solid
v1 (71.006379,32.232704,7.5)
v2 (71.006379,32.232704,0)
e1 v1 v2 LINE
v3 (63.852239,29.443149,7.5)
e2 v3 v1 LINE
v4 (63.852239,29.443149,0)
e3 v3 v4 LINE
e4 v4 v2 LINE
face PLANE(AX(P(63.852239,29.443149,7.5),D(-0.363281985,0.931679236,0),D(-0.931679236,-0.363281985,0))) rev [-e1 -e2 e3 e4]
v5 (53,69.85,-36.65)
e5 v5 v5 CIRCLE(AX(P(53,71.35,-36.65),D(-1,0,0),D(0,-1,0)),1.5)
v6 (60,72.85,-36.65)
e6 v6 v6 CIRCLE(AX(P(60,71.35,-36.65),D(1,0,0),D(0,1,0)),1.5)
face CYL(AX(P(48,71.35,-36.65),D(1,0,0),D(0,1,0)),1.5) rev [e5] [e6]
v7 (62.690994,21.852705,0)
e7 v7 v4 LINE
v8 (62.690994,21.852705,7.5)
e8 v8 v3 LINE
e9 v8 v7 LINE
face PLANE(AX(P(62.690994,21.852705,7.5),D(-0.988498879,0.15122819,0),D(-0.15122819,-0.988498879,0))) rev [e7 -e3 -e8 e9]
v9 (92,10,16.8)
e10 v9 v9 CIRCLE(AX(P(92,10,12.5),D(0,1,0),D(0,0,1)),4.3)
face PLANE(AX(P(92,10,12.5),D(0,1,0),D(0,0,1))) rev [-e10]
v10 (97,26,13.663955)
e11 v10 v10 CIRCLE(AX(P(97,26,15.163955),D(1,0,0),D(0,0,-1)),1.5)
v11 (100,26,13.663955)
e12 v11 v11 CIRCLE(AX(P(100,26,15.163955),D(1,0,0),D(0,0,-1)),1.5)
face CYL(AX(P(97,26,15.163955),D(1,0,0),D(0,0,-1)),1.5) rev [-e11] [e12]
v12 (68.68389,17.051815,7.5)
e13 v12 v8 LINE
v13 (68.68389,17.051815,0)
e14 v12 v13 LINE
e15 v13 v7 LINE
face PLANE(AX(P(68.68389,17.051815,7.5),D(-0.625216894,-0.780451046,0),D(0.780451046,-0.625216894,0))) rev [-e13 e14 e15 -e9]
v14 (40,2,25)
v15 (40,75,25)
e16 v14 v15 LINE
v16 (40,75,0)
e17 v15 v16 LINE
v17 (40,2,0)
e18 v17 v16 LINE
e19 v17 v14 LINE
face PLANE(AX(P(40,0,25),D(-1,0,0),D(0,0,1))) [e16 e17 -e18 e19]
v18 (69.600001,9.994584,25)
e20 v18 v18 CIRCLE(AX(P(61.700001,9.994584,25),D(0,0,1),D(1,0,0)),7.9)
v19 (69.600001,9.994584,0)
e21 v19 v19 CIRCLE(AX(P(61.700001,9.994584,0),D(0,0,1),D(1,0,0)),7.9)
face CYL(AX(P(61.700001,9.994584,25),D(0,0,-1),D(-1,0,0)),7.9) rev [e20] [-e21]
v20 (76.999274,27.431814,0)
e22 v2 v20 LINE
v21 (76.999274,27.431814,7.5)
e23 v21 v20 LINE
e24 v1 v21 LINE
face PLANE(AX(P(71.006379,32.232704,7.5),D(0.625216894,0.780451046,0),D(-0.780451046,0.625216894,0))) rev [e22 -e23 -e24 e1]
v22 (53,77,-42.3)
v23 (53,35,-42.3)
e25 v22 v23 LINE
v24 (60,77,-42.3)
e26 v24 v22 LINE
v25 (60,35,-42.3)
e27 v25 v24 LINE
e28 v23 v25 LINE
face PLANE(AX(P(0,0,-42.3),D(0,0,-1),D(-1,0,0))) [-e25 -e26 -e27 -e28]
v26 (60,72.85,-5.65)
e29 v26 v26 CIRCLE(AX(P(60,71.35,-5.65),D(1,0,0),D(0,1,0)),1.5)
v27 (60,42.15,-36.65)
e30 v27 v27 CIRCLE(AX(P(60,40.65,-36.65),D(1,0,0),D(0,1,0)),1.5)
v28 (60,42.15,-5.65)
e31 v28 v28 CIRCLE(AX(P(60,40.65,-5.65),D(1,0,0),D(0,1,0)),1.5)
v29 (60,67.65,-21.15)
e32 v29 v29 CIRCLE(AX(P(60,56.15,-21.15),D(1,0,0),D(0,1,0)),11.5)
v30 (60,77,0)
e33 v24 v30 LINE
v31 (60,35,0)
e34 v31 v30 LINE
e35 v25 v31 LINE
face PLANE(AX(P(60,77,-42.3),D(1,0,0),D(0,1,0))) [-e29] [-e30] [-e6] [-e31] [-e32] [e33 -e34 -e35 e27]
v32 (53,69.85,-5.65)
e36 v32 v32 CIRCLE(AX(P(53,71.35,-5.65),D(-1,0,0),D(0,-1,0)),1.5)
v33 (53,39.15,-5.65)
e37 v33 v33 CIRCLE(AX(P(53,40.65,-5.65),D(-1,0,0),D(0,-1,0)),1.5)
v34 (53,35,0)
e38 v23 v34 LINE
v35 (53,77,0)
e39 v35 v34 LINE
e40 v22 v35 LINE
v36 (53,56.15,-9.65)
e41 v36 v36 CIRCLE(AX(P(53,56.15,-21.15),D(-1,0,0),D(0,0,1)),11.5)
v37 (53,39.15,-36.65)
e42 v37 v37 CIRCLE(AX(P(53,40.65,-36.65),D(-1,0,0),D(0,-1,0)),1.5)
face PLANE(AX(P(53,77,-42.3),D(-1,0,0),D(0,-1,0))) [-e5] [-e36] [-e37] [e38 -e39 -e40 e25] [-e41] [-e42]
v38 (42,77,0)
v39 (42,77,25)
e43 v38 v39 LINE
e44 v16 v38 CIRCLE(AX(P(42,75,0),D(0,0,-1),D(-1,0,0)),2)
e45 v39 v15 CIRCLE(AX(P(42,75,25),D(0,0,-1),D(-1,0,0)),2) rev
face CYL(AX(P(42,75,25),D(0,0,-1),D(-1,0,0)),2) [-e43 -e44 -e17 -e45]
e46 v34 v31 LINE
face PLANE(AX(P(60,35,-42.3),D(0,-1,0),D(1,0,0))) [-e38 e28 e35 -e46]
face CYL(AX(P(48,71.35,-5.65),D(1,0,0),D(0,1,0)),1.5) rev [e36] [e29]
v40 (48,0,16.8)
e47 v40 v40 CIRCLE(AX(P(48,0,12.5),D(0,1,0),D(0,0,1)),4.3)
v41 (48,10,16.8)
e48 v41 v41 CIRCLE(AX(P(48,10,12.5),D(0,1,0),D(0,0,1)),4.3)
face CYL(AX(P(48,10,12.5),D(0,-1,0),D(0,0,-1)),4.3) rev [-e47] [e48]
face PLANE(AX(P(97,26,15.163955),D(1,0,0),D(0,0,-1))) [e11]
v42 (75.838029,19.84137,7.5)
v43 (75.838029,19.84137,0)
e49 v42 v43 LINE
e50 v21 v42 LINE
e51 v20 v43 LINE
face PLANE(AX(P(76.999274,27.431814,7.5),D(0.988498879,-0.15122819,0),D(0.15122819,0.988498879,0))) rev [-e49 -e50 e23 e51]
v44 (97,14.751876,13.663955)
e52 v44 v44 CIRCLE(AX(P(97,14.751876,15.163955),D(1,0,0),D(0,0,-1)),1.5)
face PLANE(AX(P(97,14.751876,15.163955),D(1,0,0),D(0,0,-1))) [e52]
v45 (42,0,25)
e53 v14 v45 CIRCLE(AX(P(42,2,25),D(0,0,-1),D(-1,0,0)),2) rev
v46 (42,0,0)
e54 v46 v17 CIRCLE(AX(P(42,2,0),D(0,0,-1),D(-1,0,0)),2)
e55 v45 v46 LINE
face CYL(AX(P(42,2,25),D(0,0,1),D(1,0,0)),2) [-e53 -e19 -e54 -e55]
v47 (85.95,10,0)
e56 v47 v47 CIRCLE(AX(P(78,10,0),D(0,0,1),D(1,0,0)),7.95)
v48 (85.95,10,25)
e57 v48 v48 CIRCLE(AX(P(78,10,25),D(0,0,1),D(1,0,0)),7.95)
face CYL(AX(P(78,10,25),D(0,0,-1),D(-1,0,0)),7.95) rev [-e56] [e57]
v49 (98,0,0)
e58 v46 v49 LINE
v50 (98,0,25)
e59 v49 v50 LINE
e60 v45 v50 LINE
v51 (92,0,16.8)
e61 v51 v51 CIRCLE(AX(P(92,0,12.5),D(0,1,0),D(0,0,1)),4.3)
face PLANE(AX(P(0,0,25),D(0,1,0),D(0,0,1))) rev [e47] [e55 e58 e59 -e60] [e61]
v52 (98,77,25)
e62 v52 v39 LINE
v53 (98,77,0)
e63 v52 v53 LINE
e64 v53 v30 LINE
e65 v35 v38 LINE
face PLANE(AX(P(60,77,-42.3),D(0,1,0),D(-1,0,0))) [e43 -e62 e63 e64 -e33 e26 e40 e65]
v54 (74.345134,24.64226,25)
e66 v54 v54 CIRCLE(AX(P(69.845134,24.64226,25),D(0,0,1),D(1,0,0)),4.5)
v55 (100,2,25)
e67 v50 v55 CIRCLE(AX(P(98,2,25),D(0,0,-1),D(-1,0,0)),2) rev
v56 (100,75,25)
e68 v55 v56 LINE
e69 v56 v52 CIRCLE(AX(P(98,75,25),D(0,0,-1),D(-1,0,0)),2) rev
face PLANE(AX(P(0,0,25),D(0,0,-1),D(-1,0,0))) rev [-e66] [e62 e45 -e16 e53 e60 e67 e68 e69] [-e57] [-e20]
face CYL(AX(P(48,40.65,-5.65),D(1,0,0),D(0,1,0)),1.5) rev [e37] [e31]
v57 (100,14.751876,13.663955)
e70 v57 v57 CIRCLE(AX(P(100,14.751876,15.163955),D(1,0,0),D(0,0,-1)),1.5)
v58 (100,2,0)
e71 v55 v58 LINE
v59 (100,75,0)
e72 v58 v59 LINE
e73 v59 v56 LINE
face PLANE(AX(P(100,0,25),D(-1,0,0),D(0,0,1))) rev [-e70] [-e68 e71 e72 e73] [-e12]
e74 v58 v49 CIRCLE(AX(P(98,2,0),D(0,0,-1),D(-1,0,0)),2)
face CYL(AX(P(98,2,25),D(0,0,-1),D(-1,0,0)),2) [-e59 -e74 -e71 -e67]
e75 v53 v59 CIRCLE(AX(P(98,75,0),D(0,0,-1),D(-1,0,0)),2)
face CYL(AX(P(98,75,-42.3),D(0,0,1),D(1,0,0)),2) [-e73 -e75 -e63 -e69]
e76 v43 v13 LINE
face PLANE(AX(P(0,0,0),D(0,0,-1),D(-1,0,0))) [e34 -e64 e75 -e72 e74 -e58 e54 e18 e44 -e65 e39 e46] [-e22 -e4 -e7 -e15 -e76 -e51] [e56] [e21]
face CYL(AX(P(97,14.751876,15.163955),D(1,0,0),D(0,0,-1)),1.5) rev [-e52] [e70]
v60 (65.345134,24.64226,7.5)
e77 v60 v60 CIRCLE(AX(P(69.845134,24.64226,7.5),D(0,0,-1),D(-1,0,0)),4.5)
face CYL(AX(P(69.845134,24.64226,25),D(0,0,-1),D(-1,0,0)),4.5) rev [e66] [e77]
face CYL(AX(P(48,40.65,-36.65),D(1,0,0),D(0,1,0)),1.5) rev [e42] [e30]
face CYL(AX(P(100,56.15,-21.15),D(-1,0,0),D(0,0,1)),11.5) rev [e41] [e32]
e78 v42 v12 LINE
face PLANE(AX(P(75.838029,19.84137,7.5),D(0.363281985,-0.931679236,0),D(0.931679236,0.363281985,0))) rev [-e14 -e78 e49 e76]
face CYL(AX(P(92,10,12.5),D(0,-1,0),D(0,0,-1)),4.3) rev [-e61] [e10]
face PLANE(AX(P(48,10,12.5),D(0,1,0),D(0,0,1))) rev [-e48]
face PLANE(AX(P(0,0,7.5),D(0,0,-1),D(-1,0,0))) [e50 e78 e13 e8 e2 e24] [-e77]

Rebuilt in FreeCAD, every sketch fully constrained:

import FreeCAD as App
import Part
import Sketcher

V = App.Vector


def edges_at(feature, points):
    """Names of the edges that pass closest to the given points."""
    edges = feature.Shape.Edges
    near = lambda p: min(range(len(edges)), key=lambda i: edges[i].distToShape(Part.Vertex(*p))[0])
    return sorted({f"Edge{near(p) + 1}" for p in points})

doc = App.newDocument("Part")
body = doc.addObject("PartDesign::Body", "Body")

sketch1 = doc.addObject("Sketcher::SketchObject", "Sketch")
body.addObject(sketch1)
sketch1.AttachmentSupport = (doc.XY_Plane, [""])
sketch1.MapMode = "FlatFace"
sketch1.addGeometry([
    Part.LineSegment(V(0, 100, 0), V(0, 0, 0)),
    Part.LineSegment(V(0, 0, 0), V(100, 0, 0)),
    Part.LineSegment(V(100, 0, 0), V(100, 100, 0)),
    Part.LineSegment(V(100, 100, 0), V(0, 100, 0)),
], False)
sketch1.addConstraint([
    Sketcher.Constraint("Coincident", 0, 2, 1, 1),
    Sketcher.Constraint("Coincident", 1, 2, 2, 1),
    Sketcher.Constraint("Coincident", 2, 2, 3, 1),
    Sketcher.Constraint("Coincident", 3, 2, 0, 1),
    Sketcher.Constraint("Vertical", 0),
    Sketcher.Constraint("Horizontal", 1),
    Sketcher.Constraint("Vertical", 2),
    Sketcher.Constraint("Horizontal", 3),
    Sketcher.Constraint("Coincident", 0, 2, -1, 1),
    Sketcher.Constraint("Equal", 3, 0),
    Sketcher.Constraint("DistanceX", 1, 1, 1, 2, 100.0),
])
pad1 = doc.addObject("PartDesign::Pad", "Pad")
body.addObject(pad1)
pad1.Profile = sketch1
pad1.Length = 25

sketch2 = doc.addObject("Sketcher::SketchObject", "Sketch001")
body.addObject(sketch2)
sketch2.AttachmentSupport = (doc.XY_Plane, [""])
sketch2.MapMode = "FlatFace"
sketch2.addGeometry([
    Part.Circle(V(61.7, 10, 0), V(0, 0, 1), 7.9),
    Part.Circle(V(78, 10, 0), V(0, 0, 1), 8),
    Part.Circle(V(69.8, 24.6, 0), V(0, 0, 1), 4.5),
], False)
sketch2.addConstraint([
    Sketcher.Constraint("Diameter", 2, 9.0),
    Sketcher.Constraint("Diameter", 0, 15.8),
    Sketcher.Constraint("Diameter", 1, 15.9),
    Sketcher.Constraint("DistanceX", -1, 1, 1, 3, 78.0),
    Sketcher.Constraint("DistanceY", -1, 1, 1, 3, 10.0),
    Sketcher.Constraint("DistanceX", -1, 1, 0, 3, 61.700001),
    Sketcher.Constraint("DistanceY", -1, 1, 2, 3, 24.64226),
    Sketcher.Constraint("DistanceY", -1, 1, 0, 3, 9.994584),
    Sketcher.Constraint("DistanceX", -1, 1, 2, 3, 69.845134),
])
pocket1 = doc.addObject("PartDesign::Pocket", "Pocket")
body.addObject(pocket1)
pocket1.Profile = sketch2
pocket1.Type = "ThroughAll"
pocket1.Reversed = True

sketch3 = doc.addObject("Sketcher::SketchObject", "Sketch002")
body.addObject(sketch3)
sketch3.AttachmentSupport = (doc.XZ_Plane, [""])
sketch3.MapMode = "FlatFace"
sketch3.addGeometry([
    Part.Circle(V(48, 12.5, 0), V(0, 0, 1), 4.3),
    Part.Circle(V(92, 12.5, 0), V(0, 0, 1), 4.3),
], False)
sketch3.addConstraint([
    Sketcher.Constraint("Equal", 0, 1),
    Sketcher.Constraint("Horizontal", 0, 3, 1, 3),
    Sketcher.Constraint("Diameter", 0, 8.6),
    Sketcher.Constraint("DistanceX", -1, 1, 0, 3, 48.0),
    Sketcher.Constraint("DistanceX", -1, 1, 1, 3, 92.0),
    Sketcher.Constraint("DistanceY", -1, 1, 0, 3, 12.5),
])
pocket2 = doc.addObject("PartDesign::Pocket", "Pocket001")
body.addObject(pocket2)
pocket2.Profile = sketch3
pocket2.Length = 10

sketch4 = doc.addObject("Sketcher::SketchObject", "Sketch003")
body.addObject(sketch4)
sketch4.AttachmentSupport = (doc.XY_Plane, [""])
sketch4.MapMode = "FlatFace"
sketch4.addGeometry([
    Part.LineSegment(V(53, 77, 0), V(53, 35, 0)),
    Part.LineSegment(V(53, 35, 0), V(60, 35, 0)),
    Part.LineSegment(V(60, 35, 0), V(60, 77, 0)),
    Part.LineSegment(V(60, 77, 0), V(53, 77, 0)),
], False)
sketch4.addConstraint([
    Sketcher.Constraint("Coincident", 0, 2, 1, 1),
    Sketcher.Constraint("Coincident", 1, 2, 2, 1),
    Sketcher.Constraint("Coincident", 2, 2, 3, 1),
    Sketcher.Constraint("Coincident", 3, 2, 0, 1),
    Sketcher.Constraint("Vertical", 0),
    Sketcher.Constraint("Horizontal", 1),
    Sketcher.Constraint("Vertical", 2),
    Sketcher.Constraint("Horizontal", 3),
    Sketcher.Constraint("DistanceX", 1, 1, 1, 2, 7.0),
    Sketcher.Constraint("DistanceY", 0, 2, 0, 1, 42.0),
    Sketcher.Constraint("DistanceX", -1, 1, 0, 2, 53.0),
    Sketcher.Constraint("DistanceY", -1, 1, 0, 2, 35.0),
])
pad2 = doc.addObject("PartDesign::Pad", "Pad001")
body.addObject(pad2)
pad2.Profile = sketch4
pad2.Length = 42.3
pad2.Reversed = True

sketch5 = doc.addObject("Sketcher::SketchObject", "Sketch004")
body.addObject(sketch5)
sketch5.AttachmentSupport = (doc.YZ_Plane, [""])
sketch5.MapMode = "FlatFace"
sketch5.AttachmentOffset = App.Placement(V(0, 0, 60), App.Rotation())
sketch5.addGeometry([
    Part.Circle(V(71.3, -36.6, 0), V(0, 0, 1), 1.5),
    Part.Circle(V(40.6, -36.6, 0), V(0, 0, 1), 1.5),
    Part.Circle(V(40.6, -5.7, 0), V(0, 0, 1), 1.5),
    Part.Circle(V(71.3, -5.7, 0), V(0, 0, 1), 1.5),
], False)
sketch5.addConstraint([
    Sketcher.Constraint("Equal", 0, 1),
    Sketcher.Constraint("Equal", 1, 2),
    Sketcher.Constraint("Equal", 2, 3),
    Sketcher.Constraint("Horizontal", 0, 3, 1, 3),
    Sketcher.Constraint("Horizontal", 2, 3, 3, 3),
    Sketcher.Constraint("Vertical", 1, 3, 2, 3),
    Sketcher.Constraint("Vertical", 0, 3, 3, 3),
    Sketcher.Constraint("Diameter", 0, 3.0),
    Sketcher.Constraint("DistanceY", 1, 3, 2, 3, 31.0),
    Sketcher.Constraint("DistanceX", 1, 3, 0, 3, 30.7),
    Sketcher.Constraint("DistanceX", -1, 1, 0, 3, 71.35),
    Sketcher.Constraint("DistanceY", 0, 3, -1, 1, 36.65),
])
pocket3 = doc.addObject("PartDesign::Pocket", "Pocket002")
body.addObject(pocket3)
pocket3.Profile = sketch5
pocket3.Length = 12

sketch6 = doc.addObject("Sketcher::SketchObject", "Sketch005")
body.addObject(sketch6)
sketch6.AttachmentSupport = (doc.XY_Plane, [""])
sketch6.MapMode = "FlatFace"
sketch6.addGeometry([
    Part.LineSegment(V(0, 100, 0), V(0, 0, 0)),
    Part.LineSegment(V(0, 0, 0), V(40, 0, 0)),
    Part.LineSegment(V(40, 0, 0), V(40, 100, 0)),
    Part.LineSegment(V(40, 100, 0), V(0, 100, 0)),
], False)
sketch6.addConstraint([
    Sketcher.Constraint("Coincident", 0, 2, 1, 1),
    Sketcher.Constraint("Coincident", 1, 2, 2, 1),
    Sketcher.Constraint("Coincident", 2, 2, 3, 1),
    Sketcher.Constraint("Coincident", 3, 2, 0, 1),
    Sketcher.Constraint("Vertical", 0),
    Sketcher.Constraint("Horizontal", 1),
    Sketcher.Constraint("Vertical", 2),
    Sketcher.Constraint("Horizontal", 3),
    Sketcher.Constraint("Coincident", 0, 2, -1, 1),
    Sketcher.Constraint("DistanceX", 1, 1, 1, 2, 40.0),
    Sketcher.Constraint("DistanceY", 0, 2, 0, 1, 100.0),
])
pocket4 = doc.addObject("PartDesign::Pocket", "Pocket003")
body.addObject(pocket4)
pocket4.Profile = sketch6
pocket4.Type = "ThroughAll"
pocket4.Reversed = True

sketch7 = doc.addObject("Sketcher::SketchObject", "Sketch006")
body.addObject(sketch7)
sketch7.AttachmentSupport = (doc.XY_Plane, [""])
sketch7.MapMode = "FlatFace"
sketch7.addGeometry([
    Part.LineSegment(V(63, 22, 0), V(64, 29, 0)),
    Part.LineSegment(V(64, 29, 0), V(71, 32, 0)),
    Part.LineSegment(V(71, 32, 0), V(77, 27, 0)),
    Part.LineSegment(V(77, 27, 0), V(76, 20, 0)),
    Part.LineSegment(V(76, 20, 0), V(69, 17, 0)),
    Part.LineSegment(V(69, 17, 0), V(63, 22, 0)),
], False)
sketch7.addConstraint([
    Sketcher.Constraint("Coincident", 0, 2, 1, 1),
    Sketcher.Constraint("Coincident", 1, 2, 2, 1),
    Sketcher.Constraint("Coincident", 2, 2, 3, 1),
    Sketcher.Constraint("Coincident", 3, 2, 4, 1),
    Sketcher.Constraint("Coincident", 4, 2, 5, 1),
    Sketcher.Constraint("Coincident", 5, 2, 0, 1),
    Sketcher.Constraint("Parallel", 0, 3),
    Sketcher.Constraint("Parallel", 1, 4),
    Sketcher.Constraint("Parallel", 2, 5),
    Sketcher.Constraint("Equal", 0, 1),
    Sketcher.Constraint("Equal", 1, 2),
    Sketcher.Constraint("Equal", 2, 3),
    Sketcher.Constraint("DistanceY", 4, 2, 2, 2, 10.379999),
    Sketcher.Constraint("Distance", 0, 7.678759),
    Sketcher.Constraint("DistanceX", -1, 1, 0, 2, 63.852239),
    Sketcher.Constraint("DistanceY", -1, 1, 0, 2, 29.443149),
    Sketcher.Constraint("DistanceX", -1, 1, 1, 2, 71.006379),
    Sketcher.Constraint("DistanceX", -1, 1, 3, 2, 75.838029),
])
pocket5 = doc.addObject("PartDesign::Pocket", "Pocket004")
body.addObject(pocket5)
pocket5.Profile = sketch7
pocket5.Length = 7.5
pocket5.Reversed = True

sketch8 = doc.addObject("Sketcher::SketchObject", "Sketch007")
body.addObject(sketch8)
sketch8.AttachmentSupport = (doc.YZ_Plane, [""])
sketch8.MapMode = "FlatFace"
sketch8.AttachmentOffset = App.Placement(V(0, 0, 53), App.Rotation())
sketch8.addGeometry(Part.Circle(V(56, -21, 0), V(0, 0, 1), 12), False)
sketch8.addConstraint([
    Sketcher.Constraint("Diameter", 0, 23.0),
    Sketcher.Constraint("DistanceX", -1, 1, 0, 3, 56.15),
    Sketcher.Constraint("DistanceY", 0, 3, -1, 1, 21.15),
])
pocket6 = doc.addObject("PartDesign::Pocket", "Pocket005")
body.addObject(pocket6)
pocket6.Profile = sketch8
pocket6.Type = "ThroughAll"
pocket6.Reversed = True

sketch9 = doc.addObject("Sketcher::SketchObject", "Sketch008")
body.addObject(sketch9)
sketch9.AttachmentSupport = (doc.YZ_Plane, [""])
sketch9.MapMode = "FlatFace"
sketch9.AttachmentOffset = App.Placement(V(0, 0, 100), App.Rotation())
sketch9.addGeometry([
    Part.Circle(V(26, 15.2, 0), V(0, 0, 1), 1.5),
    Part.Circle(V(14.8, 15.2, 0), V(0, 0, 1), 1.5),
], False)
sketch9.addConstraint([
    Sketcher.Constraint("Equal", 0, 1),
    Sketcher.Constraint("Horizontal", 0, 3, 1, 3),
    Sketcher.Constraint("Diameter", 0, 3.0),
    Sketcher.Constraint("DistanceX", -1, 1, 0, 3, 26.0),
    Sketcher.Constraint("DistanceY", -1, 1, 0, 3, 15.163955),
    Sketcher.Constraint("DistanceX", -1, 1, 1, 3, 14.751876),
])
pocket7 = doc.addObject("PartDesign::Pocket", "Pocket006")
body.addObject(pocket7)
pocket7.Profile = sketch9
pocket7.Length = 3

sketch10 = doc.addObject("Sketcher::SketchObject", "Sketch009")
body.addObject(sketch10)
sketch10.AttachmentSupport = (doc.XY_Plane, [""])
sketch10.MapMode = "FlatFace"
sketch10.addGeometry([
    Part.LineSegment(V(100, 100, 0), V(100, 77, 0)),
    Part.LineSegment(V(100, 77, 0), V(40, 77, 0)),
    Part.LineSegment(V(40, 77, 0), V(40, 100, 0)),
    Part.LineSegment(V(40, 100, 0), V(100, 100, 0)),
], False)
sketch10.addConstraint([
    Sketcher.Constraint("Coincident", 0, 2, 1, 1),
    Sketcher.Constraint("Coincident", 1, 2, 2, 1),
    Sketcher.Constraint("Coincident", 2, 2, 3, 1),
    Sketcher.Constraint("Coincident", 3, 2, 0, 1),
    Sketcher.Constraint("Vertical", 0),
    Sketcher.Constraint("Horizontal", 1),
    Sketcher.Constraint("Vertical", 2),
    Sketcher.Constraint("Horizontal", 3),
    Sketcher.Constraint("DistanceX", 1, 2, 1, 1, 60.0),
    Sketcher.Constraint("DistanceY", 0, 2, 0, 1, 23.0),
    Sketcher.Constraint("DistanceX", -1, 1, 0, 2, 100.0),
    Sketcher.Constraint("DistanceY", -1, 1, 0, 2, 77.0),
])
pocket8 = doc.addObject("PartDesign::Pocket", "Pocket007")
body.addObject(pocket8)
pocket8.Profile = sketch10
pocket8.Type = "ThroughAll"
pocket8.Reversed = True
doc.recompute()

fillet = doc.addObject("PartDesign::Fillet", "Fillet")
body.addObject(fillet)
fillet.Base = (pocket8, edges_at(pocket8, [
    (100, 77, 12.5),
    (40, 77, 12.5),
    (40, 0, 12.5),
    (100, 0, 12.5),
]))
fillet.Radius = 2

doc.recompute()
